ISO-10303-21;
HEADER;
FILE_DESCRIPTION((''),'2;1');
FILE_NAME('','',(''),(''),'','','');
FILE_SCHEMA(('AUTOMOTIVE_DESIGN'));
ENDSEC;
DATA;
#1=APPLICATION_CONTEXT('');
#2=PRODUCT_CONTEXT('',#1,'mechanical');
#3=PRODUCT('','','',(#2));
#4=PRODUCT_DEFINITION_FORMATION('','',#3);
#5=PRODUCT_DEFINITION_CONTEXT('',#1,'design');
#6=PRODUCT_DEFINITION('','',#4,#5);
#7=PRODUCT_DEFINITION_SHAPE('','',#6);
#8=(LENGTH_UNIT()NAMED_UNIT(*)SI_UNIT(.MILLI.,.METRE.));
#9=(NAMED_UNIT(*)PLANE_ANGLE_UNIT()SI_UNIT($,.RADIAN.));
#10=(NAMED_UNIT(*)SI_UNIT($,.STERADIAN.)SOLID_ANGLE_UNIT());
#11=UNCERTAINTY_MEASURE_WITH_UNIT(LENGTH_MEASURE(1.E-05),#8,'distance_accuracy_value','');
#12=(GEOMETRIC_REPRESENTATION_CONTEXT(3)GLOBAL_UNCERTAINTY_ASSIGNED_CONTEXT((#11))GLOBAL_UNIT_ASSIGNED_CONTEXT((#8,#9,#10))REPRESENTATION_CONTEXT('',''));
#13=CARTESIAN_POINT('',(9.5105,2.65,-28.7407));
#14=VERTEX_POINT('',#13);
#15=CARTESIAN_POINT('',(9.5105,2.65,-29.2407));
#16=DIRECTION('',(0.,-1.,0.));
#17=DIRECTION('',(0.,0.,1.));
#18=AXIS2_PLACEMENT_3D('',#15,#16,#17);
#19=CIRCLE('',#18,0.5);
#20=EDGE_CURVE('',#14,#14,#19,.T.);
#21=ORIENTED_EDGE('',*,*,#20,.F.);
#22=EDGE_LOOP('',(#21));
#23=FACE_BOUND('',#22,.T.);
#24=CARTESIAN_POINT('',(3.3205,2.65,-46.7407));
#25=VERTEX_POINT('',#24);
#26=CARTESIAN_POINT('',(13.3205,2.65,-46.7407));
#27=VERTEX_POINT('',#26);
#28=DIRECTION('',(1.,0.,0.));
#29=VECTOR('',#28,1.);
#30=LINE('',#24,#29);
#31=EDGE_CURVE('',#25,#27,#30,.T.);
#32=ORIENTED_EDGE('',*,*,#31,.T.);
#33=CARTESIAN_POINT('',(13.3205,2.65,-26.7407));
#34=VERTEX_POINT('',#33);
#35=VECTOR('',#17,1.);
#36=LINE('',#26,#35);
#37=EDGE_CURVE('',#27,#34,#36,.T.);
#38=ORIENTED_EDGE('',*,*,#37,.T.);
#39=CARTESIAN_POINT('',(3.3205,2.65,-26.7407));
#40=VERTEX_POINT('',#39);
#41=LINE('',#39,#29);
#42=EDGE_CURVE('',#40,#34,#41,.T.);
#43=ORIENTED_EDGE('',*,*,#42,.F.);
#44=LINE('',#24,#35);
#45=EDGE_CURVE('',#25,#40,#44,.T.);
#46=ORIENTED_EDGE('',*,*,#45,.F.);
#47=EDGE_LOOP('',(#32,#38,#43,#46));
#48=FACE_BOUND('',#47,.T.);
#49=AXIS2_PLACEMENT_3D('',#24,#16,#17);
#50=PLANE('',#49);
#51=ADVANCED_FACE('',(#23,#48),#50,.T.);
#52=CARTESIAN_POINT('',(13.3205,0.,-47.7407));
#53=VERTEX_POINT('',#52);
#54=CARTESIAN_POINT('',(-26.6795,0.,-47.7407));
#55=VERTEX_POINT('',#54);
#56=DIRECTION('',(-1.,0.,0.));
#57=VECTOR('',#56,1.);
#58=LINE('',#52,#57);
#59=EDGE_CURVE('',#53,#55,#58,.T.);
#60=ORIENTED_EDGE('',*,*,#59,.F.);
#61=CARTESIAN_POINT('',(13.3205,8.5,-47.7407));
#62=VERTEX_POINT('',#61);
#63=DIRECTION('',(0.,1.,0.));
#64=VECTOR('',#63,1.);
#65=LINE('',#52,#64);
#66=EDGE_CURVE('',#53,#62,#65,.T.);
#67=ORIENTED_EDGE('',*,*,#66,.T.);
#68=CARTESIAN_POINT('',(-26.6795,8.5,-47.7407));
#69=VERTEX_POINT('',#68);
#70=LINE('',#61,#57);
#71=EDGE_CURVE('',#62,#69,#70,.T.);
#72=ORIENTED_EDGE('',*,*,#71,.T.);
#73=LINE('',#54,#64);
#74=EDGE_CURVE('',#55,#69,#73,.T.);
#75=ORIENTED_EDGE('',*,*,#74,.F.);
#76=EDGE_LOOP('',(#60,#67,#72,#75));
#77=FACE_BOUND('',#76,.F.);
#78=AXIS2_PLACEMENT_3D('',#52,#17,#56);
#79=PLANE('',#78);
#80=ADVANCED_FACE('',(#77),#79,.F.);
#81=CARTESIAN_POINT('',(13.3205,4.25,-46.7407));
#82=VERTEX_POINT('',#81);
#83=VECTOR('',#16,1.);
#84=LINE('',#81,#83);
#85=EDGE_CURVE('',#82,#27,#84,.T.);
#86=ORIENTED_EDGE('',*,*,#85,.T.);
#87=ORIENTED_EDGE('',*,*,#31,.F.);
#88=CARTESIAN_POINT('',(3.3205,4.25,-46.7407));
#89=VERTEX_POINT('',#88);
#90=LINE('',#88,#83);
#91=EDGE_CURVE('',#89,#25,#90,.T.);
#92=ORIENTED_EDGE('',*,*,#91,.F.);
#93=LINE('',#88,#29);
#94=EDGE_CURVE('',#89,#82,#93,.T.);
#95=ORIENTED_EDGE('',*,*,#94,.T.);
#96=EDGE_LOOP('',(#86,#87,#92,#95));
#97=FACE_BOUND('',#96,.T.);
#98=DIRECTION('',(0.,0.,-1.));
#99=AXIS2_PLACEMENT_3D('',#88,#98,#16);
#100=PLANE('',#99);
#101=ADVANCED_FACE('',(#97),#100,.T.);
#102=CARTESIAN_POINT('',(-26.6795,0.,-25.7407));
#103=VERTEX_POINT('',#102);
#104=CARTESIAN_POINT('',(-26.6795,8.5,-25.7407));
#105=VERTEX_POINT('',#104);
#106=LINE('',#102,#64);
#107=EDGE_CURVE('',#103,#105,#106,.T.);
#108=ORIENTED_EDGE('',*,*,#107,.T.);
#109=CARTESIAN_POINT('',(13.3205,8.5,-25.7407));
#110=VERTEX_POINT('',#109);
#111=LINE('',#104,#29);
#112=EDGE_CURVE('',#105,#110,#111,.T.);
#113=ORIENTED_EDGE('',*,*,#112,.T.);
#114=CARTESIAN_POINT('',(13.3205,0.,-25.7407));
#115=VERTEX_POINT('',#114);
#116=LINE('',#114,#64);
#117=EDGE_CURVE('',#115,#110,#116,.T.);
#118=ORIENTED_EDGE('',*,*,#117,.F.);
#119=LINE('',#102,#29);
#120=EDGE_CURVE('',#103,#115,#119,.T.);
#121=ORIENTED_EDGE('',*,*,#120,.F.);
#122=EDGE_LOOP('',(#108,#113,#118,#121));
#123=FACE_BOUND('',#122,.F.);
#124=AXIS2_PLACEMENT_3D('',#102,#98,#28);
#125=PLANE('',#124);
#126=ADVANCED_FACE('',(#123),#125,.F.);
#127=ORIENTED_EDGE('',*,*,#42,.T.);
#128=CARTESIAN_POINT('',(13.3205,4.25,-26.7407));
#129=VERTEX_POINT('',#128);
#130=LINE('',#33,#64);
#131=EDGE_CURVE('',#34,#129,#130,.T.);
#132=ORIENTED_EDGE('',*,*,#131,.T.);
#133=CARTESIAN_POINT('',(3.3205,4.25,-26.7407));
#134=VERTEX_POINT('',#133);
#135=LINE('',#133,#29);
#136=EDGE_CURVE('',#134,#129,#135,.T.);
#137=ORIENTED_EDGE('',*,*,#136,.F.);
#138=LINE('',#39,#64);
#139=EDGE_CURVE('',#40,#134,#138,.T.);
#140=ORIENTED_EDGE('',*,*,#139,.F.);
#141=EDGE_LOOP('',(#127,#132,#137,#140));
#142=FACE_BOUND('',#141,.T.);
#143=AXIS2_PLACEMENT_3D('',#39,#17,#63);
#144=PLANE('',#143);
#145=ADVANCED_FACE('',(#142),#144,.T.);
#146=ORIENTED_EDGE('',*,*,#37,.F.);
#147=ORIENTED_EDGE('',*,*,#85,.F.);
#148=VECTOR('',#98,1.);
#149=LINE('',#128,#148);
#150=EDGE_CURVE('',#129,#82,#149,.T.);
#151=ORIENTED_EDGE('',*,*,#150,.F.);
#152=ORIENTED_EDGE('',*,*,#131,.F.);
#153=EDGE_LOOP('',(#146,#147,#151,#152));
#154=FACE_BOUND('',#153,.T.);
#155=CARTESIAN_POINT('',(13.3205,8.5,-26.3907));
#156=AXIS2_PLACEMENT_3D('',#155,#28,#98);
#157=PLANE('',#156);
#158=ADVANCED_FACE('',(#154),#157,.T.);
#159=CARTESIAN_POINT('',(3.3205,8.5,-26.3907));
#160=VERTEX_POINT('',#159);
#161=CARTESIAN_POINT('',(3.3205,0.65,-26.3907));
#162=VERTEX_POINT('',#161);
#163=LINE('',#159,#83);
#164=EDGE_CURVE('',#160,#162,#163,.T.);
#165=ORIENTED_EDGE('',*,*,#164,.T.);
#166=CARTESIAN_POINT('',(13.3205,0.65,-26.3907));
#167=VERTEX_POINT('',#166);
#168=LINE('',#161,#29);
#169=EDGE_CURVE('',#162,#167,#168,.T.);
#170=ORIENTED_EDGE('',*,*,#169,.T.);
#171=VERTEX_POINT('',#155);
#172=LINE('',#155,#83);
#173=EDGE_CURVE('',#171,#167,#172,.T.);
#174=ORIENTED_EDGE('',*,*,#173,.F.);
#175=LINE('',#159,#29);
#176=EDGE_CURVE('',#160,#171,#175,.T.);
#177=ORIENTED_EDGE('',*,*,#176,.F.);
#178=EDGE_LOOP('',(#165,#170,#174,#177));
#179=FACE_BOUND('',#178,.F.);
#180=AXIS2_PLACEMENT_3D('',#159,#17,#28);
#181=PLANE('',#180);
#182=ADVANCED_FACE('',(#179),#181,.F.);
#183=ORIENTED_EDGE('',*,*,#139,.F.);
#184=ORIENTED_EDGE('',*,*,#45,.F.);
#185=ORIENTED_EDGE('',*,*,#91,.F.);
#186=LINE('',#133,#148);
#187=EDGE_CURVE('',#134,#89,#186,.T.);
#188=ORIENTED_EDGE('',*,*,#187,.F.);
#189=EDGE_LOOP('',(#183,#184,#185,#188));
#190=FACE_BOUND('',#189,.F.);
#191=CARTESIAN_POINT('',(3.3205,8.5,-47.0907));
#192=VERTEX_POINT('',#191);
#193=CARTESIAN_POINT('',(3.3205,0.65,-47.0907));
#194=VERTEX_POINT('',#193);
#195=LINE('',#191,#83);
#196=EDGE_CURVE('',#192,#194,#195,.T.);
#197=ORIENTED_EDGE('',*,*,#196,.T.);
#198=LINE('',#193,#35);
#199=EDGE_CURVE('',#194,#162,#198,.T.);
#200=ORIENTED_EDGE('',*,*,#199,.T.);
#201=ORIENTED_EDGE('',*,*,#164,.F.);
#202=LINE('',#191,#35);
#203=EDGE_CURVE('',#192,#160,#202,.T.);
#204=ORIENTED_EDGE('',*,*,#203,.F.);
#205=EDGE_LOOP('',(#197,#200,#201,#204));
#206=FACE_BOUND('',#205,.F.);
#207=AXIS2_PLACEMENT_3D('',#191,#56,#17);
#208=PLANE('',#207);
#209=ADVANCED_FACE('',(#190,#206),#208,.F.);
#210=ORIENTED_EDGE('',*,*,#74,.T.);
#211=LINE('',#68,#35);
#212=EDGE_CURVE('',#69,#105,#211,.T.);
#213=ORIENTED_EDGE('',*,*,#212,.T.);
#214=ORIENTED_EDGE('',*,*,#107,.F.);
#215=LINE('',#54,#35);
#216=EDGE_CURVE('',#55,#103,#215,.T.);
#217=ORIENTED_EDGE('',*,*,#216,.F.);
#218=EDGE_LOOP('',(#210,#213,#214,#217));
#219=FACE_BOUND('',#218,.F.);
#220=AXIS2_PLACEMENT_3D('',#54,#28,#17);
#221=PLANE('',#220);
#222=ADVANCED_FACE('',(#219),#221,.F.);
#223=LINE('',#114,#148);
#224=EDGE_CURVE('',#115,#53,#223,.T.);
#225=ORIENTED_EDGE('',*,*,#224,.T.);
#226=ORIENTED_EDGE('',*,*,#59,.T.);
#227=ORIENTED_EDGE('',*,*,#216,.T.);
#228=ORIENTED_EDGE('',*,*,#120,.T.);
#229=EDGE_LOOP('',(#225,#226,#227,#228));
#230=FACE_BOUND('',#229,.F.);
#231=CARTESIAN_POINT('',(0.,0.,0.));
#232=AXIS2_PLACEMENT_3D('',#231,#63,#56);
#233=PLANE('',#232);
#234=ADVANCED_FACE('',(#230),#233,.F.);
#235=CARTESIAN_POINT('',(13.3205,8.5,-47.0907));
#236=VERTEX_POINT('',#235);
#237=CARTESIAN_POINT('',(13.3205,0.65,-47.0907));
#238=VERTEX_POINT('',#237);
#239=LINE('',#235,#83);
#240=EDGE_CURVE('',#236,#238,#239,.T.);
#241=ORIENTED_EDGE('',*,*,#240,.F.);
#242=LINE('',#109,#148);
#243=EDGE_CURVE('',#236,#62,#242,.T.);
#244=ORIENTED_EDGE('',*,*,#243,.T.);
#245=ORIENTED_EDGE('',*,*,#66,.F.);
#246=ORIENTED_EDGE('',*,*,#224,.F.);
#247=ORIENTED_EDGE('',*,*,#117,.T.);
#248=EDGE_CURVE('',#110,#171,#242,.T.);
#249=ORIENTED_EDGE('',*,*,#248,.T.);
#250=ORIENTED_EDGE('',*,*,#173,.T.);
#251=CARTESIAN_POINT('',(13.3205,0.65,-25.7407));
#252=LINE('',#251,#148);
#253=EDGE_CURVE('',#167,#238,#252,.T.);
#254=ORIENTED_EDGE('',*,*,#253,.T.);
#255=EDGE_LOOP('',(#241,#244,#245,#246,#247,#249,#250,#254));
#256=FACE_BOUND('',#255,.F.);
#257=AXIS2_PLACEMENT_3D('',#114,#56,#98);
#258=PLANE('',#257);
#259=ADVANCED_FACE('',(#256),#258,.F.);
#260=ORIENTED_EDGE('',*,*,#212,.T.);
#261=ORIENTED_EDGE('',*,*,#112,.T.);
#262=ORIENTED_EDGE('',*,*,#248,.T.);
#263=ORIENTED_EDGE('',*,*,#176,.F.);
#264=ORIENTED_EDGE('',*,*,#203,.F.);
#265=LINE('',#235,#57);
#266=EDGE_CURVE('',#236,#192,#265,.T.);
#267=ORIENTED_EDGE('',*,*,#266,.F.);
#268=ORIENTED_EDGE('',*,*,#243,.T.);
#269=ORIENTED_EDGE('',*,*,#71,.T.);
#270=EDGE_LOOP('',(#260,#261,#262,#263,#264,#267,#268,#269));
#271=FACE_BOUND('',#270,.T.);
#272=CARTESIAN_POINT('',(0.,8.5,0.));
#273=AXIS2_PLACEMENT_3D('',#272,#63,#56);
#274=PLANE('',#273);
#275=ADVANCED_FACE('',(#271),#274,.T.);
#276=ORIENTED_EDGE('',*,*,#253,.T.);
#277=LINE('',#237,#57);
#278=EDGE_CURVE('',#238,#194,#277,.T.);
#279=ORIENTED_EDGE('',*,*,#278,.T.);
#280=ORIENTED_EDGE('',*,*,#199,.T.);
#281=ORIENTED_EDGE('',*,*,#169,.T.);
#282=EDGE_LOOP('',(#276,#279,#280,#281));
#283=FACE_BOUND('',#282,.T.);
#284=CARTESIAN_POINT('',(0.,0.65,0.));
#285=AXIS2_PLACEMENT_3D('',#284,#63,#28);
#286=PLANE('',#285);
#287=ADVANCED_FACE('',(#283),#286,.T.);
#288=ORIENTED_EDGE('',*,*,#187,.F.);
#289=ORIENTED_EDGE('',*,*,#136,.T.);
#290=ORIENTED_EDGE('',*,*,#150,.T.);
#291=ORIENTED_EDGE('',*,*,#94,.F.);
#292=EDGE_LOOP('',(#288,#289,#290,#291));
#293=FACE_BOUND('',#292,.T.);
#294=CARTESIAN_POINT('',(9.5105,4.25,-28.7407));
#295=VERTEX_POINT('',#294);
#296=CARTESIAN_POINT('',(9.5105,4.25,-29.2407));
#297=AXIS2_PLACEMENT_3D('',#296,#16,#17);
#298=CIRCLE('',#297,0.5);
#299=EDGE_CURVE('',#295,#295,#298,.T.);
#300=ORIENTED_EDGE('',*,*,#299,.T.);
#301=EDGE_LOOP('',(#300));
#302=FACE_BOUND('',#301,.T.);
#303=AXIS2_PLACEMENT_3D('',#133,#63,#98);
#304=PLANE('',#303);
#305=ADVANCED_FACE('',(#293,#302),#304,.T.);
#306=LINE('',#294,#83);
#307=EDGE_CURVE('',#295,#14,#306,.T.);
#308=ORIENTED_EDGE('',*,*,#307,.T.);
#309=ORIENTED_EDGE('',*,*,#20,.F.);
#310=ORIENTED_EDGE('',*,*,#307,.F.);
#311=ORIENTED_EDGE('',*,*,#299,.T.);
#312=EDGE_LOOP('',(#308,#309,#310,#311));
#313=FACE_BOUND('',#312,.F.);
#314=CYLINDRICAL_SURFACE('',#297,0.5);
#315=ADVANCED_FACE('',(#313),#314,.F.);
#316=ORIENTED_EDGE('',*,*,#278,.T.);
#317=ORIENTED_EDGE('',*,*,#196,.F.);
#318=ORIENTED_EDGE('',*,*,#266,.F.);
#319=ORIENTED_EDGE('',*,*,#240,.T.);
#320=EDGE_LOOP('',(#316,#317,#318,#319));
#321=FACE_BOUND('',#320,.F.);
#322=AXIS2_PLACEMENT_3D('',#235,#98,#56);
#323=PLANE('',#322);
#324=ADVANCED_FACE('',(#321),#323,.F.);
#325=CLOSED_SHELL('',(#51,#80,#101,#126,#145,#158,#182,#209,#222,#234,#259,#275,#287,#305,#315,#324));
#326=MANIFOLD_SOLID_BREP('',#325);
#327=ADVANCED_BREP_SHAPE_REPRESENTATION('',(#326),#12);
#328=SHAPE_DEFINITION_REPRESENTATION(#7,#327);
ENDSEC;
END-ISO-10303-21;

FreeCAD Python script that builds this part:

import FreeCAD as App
import Part
import Sketcher

V = App.Vector


def add_polygon(sketch, points):
    """Adds a closed chain of lines whose ends are joined by coincident constraints."""
    first, n = sketch.GeometryCount, len(points)
    for a, b in zip(points, points[1:] + points[:1]):
        sketch.addGeometry(Part.LineSegment(App.Vector(*a, 0), App.Vector(*b, 0)), False)
    for i in range(n):
        sketch.addConstraint(Sketcher.Constraint("Coincident", first + i, 2, first + (i + 1) % n, 1))

doc = App.newDocument("Part")
params = doc.addObject("Spreadsheet::Sheet", "Params")
for row, (alias, value) in enumerate([
    ("sketch1_width", "40 mm"),
    ("sketch1_height", "22 mm"),
    ("pad1_length", "8.5 mm"),
    ("sketch2_width", "10 mm"),
    ("sketch2_height", "20.7 mm"),
    ("pocket1_length", "7.85 mm"),
    ("sketch3_height", "20 mm"),
    ("sketch3_width", "1.6 mm"),
    ("pad2_length", "10 mm"),
    ("sketch4_diameter", "1 mm"),
    ("hole_diameter", "1 mm"),
    ("hole_depth", "1.6 mm"),
], start=1):
    params.set(f"A{row}", alias)
    params.set(f"B{row}", "=" + value)
    params.setAlias(f"B{row}", alias)

body = doc.addObject("PartDesign::Body", "Body")

# Sketch on XZ plane
sketch1 = body.newObject("Sketcher::SketchObject", "Sketch")
sketch1.AttachmentSupport = (doc.getObject("XZ_Plane"), [""])
sketch1.MapMode = "FlatFace"
add_polygon(sketch1, [(-26.6795, -47.7407), (-26.6795, -25.7407), (13.3205, -25.7407), (13.3205, -47.7407)])  # lines 0-3
sketch1.addConstraint([
    Sketcher.Constraint("Vertical", 0),
    Sketcher.Constraint("Horizontal", 1),
    Sketcher.Constraint("Vertical", 2),
    Sketcher.Constraint("Horizontal", 3),
    Sketcher.Constraint("DistanceX", 1, 1, 1, 2, 40.0),
    Sketcher.Constraint("DistanceY", 0, 1, 0, 2, 22.0),
    Sketcher.Constraint("DistanceX", 0, 2, -1, 1, 26.6795),
    Sketcher.Constraint("DistanceY", 0, 2, -1, 1, 25.7407),
])
sketch1.setExpression("Constraints[8]", "Params.sketch1_width")
sketch1.setExpression("Constraints[9]", "Params.sketch1_height")
pad1 = body.newObject("PartDesign::Pad", "Pad")
pad1.Profile = sketch1
pad1.setExpression("Length", "Params.pad1_length")
pad1.Reversed = True

# Sketch on XZ plane
sketch2 = body.newObject("Sketcher::SketchObject", "Sketch001")
sketch2.AttachmentSupport = (doc.getObject("XZ_Plane"), [""])
sketch2.MapMode = "FlatFace"
sketch2.AttachmentOffset = App.Placement(V(0, 0, -8.5), App.Rotation())
add_polygon(sketch2, [(3.3205, -26.3907), (13.3205, -26.3907), (13.3205, -47.0907), (3.3205, -47.0907)])  # lines 0-3
sketch2.addConstraint([
    Sketcher.Constraint("Horizontal", 0),
    Sketcher.Constraint("Vertical", 1),
    Sketcher.Constraint("Horizontal", 2),
    Sketcher.Constraint("Vertical", 3),
    Sketcher.Constraint("DistanceX", 0, 1, 0, 2, 10.0),
    Sketcher.Constraint("DistanceY", 1, 2, 1, 1, 20.7),
    Sketcher.Constraint("DistanceX", -1, 1, 0, 2, 13.3205),
    Sketcher.Constraint("DistanceY", 0, 2, -1, 1, 26.3907),
])
sketch2.setExpression("Constraints[8]", "Params.sketch2_width")
sketch2.setExpression("Constraints[9]", "Params.sketch2_height")
pocket1 = body.newObject("PartDesign::Pocket", "Pocket")
pocket1.Profile = sketch2
pocket1.setExpression("Length", "Params.pocket1_length")
pocket1.Reversed = True

# Sketch on YZ plane
sketch3 = body.newObject("Sketcher::SketchObject", "Sketch002")
sketch3.AttachmentSupport = (doc.getObject("YZ_Plane"), [""])
sketch3.MapMode = "FlatFace"
sketch3.AttachmentOffset = App.Placement(V(0, 0, 3.3205), App.Rotation())
add_polygon(sketch3, [(4.25, -46.7407), (4.25, -26.7407), (2.65, -26.7407), (2.65, -46.7407)])  # lines 0-3
sketch3.addConstraint([
    Sketcher.Constraint("Vertical", 0),
    Sketcher.Constraint("Horizontal", 1),
    Sketcher.Constraint("Vertical", 2),
    Sketcher.Constraint("Horizontal", 3),
    Sketcher.Constraint("DistanceY", 0, 1, 0, 2, 20.0),
    Sketcher.Constraint("DistanceX", 1, 2, 1, 1, 1.6),
    Sketcher.Constraint("DistanceX", -1, 1, 0, 2, 4.25),
    Sketcher.Constraint("DistanceY", 0, 2, -1, 1, 26.7407),
])
sketch3.setExpression("Constraints[8]", "Params.sketch3_height")
sketch3.setExpression("Constraints[9]", "Params.sketch3_width")
pad2 = body.newObject("PartDesign::Pad", "Pad001")
pad2.Profile = sketch3
pad2.setExpression("Length", "Params.pad2_length")

# Sketch on XZ plane
sketch4 = body.newObject("Sketcher::SketchObject", "Sketch003")
sketch4.AttachmentSupport = (doc.getObject("XZ_Plane"), [""])
sketch4.MapMode = "FlatFace"
sketch4.AttachmentOffset = App.Placement(V(0, 0, -4.25), App.Rotation())
sketch4.addGeometry(Part.Circle(V(9.5105, -29.2407, 0), V(0, 0, 1), 0.5), False)
sketch4.addConstraint([
    Sketcher.Constraint("Diameter", 0, 1.0),
    Sketcher.Constraint("DistanceX", -1, 1, 0, 3, 9.5105),
    Sketcher.Constraint("DistanceY", 0, 3, -1, 1, 29.2407),
])
sketch4.setExpression("Constraints[0]", "Params.sketch4_diameter")
doc.recompute()
hole = body.newObject("PartDesign::Hole", "Hole")
hole.Profile = sketch4
hole.ThreadType = "None"
hole.setExpression("Diameter", "Params.hole_diameter")
hole.DepthType = "Dimension"
hole.setExpression("Depth", "Params.hole_depth")
hole.DrillPoint = "Flat"
hole.Reversed = True

doc.recompute()
